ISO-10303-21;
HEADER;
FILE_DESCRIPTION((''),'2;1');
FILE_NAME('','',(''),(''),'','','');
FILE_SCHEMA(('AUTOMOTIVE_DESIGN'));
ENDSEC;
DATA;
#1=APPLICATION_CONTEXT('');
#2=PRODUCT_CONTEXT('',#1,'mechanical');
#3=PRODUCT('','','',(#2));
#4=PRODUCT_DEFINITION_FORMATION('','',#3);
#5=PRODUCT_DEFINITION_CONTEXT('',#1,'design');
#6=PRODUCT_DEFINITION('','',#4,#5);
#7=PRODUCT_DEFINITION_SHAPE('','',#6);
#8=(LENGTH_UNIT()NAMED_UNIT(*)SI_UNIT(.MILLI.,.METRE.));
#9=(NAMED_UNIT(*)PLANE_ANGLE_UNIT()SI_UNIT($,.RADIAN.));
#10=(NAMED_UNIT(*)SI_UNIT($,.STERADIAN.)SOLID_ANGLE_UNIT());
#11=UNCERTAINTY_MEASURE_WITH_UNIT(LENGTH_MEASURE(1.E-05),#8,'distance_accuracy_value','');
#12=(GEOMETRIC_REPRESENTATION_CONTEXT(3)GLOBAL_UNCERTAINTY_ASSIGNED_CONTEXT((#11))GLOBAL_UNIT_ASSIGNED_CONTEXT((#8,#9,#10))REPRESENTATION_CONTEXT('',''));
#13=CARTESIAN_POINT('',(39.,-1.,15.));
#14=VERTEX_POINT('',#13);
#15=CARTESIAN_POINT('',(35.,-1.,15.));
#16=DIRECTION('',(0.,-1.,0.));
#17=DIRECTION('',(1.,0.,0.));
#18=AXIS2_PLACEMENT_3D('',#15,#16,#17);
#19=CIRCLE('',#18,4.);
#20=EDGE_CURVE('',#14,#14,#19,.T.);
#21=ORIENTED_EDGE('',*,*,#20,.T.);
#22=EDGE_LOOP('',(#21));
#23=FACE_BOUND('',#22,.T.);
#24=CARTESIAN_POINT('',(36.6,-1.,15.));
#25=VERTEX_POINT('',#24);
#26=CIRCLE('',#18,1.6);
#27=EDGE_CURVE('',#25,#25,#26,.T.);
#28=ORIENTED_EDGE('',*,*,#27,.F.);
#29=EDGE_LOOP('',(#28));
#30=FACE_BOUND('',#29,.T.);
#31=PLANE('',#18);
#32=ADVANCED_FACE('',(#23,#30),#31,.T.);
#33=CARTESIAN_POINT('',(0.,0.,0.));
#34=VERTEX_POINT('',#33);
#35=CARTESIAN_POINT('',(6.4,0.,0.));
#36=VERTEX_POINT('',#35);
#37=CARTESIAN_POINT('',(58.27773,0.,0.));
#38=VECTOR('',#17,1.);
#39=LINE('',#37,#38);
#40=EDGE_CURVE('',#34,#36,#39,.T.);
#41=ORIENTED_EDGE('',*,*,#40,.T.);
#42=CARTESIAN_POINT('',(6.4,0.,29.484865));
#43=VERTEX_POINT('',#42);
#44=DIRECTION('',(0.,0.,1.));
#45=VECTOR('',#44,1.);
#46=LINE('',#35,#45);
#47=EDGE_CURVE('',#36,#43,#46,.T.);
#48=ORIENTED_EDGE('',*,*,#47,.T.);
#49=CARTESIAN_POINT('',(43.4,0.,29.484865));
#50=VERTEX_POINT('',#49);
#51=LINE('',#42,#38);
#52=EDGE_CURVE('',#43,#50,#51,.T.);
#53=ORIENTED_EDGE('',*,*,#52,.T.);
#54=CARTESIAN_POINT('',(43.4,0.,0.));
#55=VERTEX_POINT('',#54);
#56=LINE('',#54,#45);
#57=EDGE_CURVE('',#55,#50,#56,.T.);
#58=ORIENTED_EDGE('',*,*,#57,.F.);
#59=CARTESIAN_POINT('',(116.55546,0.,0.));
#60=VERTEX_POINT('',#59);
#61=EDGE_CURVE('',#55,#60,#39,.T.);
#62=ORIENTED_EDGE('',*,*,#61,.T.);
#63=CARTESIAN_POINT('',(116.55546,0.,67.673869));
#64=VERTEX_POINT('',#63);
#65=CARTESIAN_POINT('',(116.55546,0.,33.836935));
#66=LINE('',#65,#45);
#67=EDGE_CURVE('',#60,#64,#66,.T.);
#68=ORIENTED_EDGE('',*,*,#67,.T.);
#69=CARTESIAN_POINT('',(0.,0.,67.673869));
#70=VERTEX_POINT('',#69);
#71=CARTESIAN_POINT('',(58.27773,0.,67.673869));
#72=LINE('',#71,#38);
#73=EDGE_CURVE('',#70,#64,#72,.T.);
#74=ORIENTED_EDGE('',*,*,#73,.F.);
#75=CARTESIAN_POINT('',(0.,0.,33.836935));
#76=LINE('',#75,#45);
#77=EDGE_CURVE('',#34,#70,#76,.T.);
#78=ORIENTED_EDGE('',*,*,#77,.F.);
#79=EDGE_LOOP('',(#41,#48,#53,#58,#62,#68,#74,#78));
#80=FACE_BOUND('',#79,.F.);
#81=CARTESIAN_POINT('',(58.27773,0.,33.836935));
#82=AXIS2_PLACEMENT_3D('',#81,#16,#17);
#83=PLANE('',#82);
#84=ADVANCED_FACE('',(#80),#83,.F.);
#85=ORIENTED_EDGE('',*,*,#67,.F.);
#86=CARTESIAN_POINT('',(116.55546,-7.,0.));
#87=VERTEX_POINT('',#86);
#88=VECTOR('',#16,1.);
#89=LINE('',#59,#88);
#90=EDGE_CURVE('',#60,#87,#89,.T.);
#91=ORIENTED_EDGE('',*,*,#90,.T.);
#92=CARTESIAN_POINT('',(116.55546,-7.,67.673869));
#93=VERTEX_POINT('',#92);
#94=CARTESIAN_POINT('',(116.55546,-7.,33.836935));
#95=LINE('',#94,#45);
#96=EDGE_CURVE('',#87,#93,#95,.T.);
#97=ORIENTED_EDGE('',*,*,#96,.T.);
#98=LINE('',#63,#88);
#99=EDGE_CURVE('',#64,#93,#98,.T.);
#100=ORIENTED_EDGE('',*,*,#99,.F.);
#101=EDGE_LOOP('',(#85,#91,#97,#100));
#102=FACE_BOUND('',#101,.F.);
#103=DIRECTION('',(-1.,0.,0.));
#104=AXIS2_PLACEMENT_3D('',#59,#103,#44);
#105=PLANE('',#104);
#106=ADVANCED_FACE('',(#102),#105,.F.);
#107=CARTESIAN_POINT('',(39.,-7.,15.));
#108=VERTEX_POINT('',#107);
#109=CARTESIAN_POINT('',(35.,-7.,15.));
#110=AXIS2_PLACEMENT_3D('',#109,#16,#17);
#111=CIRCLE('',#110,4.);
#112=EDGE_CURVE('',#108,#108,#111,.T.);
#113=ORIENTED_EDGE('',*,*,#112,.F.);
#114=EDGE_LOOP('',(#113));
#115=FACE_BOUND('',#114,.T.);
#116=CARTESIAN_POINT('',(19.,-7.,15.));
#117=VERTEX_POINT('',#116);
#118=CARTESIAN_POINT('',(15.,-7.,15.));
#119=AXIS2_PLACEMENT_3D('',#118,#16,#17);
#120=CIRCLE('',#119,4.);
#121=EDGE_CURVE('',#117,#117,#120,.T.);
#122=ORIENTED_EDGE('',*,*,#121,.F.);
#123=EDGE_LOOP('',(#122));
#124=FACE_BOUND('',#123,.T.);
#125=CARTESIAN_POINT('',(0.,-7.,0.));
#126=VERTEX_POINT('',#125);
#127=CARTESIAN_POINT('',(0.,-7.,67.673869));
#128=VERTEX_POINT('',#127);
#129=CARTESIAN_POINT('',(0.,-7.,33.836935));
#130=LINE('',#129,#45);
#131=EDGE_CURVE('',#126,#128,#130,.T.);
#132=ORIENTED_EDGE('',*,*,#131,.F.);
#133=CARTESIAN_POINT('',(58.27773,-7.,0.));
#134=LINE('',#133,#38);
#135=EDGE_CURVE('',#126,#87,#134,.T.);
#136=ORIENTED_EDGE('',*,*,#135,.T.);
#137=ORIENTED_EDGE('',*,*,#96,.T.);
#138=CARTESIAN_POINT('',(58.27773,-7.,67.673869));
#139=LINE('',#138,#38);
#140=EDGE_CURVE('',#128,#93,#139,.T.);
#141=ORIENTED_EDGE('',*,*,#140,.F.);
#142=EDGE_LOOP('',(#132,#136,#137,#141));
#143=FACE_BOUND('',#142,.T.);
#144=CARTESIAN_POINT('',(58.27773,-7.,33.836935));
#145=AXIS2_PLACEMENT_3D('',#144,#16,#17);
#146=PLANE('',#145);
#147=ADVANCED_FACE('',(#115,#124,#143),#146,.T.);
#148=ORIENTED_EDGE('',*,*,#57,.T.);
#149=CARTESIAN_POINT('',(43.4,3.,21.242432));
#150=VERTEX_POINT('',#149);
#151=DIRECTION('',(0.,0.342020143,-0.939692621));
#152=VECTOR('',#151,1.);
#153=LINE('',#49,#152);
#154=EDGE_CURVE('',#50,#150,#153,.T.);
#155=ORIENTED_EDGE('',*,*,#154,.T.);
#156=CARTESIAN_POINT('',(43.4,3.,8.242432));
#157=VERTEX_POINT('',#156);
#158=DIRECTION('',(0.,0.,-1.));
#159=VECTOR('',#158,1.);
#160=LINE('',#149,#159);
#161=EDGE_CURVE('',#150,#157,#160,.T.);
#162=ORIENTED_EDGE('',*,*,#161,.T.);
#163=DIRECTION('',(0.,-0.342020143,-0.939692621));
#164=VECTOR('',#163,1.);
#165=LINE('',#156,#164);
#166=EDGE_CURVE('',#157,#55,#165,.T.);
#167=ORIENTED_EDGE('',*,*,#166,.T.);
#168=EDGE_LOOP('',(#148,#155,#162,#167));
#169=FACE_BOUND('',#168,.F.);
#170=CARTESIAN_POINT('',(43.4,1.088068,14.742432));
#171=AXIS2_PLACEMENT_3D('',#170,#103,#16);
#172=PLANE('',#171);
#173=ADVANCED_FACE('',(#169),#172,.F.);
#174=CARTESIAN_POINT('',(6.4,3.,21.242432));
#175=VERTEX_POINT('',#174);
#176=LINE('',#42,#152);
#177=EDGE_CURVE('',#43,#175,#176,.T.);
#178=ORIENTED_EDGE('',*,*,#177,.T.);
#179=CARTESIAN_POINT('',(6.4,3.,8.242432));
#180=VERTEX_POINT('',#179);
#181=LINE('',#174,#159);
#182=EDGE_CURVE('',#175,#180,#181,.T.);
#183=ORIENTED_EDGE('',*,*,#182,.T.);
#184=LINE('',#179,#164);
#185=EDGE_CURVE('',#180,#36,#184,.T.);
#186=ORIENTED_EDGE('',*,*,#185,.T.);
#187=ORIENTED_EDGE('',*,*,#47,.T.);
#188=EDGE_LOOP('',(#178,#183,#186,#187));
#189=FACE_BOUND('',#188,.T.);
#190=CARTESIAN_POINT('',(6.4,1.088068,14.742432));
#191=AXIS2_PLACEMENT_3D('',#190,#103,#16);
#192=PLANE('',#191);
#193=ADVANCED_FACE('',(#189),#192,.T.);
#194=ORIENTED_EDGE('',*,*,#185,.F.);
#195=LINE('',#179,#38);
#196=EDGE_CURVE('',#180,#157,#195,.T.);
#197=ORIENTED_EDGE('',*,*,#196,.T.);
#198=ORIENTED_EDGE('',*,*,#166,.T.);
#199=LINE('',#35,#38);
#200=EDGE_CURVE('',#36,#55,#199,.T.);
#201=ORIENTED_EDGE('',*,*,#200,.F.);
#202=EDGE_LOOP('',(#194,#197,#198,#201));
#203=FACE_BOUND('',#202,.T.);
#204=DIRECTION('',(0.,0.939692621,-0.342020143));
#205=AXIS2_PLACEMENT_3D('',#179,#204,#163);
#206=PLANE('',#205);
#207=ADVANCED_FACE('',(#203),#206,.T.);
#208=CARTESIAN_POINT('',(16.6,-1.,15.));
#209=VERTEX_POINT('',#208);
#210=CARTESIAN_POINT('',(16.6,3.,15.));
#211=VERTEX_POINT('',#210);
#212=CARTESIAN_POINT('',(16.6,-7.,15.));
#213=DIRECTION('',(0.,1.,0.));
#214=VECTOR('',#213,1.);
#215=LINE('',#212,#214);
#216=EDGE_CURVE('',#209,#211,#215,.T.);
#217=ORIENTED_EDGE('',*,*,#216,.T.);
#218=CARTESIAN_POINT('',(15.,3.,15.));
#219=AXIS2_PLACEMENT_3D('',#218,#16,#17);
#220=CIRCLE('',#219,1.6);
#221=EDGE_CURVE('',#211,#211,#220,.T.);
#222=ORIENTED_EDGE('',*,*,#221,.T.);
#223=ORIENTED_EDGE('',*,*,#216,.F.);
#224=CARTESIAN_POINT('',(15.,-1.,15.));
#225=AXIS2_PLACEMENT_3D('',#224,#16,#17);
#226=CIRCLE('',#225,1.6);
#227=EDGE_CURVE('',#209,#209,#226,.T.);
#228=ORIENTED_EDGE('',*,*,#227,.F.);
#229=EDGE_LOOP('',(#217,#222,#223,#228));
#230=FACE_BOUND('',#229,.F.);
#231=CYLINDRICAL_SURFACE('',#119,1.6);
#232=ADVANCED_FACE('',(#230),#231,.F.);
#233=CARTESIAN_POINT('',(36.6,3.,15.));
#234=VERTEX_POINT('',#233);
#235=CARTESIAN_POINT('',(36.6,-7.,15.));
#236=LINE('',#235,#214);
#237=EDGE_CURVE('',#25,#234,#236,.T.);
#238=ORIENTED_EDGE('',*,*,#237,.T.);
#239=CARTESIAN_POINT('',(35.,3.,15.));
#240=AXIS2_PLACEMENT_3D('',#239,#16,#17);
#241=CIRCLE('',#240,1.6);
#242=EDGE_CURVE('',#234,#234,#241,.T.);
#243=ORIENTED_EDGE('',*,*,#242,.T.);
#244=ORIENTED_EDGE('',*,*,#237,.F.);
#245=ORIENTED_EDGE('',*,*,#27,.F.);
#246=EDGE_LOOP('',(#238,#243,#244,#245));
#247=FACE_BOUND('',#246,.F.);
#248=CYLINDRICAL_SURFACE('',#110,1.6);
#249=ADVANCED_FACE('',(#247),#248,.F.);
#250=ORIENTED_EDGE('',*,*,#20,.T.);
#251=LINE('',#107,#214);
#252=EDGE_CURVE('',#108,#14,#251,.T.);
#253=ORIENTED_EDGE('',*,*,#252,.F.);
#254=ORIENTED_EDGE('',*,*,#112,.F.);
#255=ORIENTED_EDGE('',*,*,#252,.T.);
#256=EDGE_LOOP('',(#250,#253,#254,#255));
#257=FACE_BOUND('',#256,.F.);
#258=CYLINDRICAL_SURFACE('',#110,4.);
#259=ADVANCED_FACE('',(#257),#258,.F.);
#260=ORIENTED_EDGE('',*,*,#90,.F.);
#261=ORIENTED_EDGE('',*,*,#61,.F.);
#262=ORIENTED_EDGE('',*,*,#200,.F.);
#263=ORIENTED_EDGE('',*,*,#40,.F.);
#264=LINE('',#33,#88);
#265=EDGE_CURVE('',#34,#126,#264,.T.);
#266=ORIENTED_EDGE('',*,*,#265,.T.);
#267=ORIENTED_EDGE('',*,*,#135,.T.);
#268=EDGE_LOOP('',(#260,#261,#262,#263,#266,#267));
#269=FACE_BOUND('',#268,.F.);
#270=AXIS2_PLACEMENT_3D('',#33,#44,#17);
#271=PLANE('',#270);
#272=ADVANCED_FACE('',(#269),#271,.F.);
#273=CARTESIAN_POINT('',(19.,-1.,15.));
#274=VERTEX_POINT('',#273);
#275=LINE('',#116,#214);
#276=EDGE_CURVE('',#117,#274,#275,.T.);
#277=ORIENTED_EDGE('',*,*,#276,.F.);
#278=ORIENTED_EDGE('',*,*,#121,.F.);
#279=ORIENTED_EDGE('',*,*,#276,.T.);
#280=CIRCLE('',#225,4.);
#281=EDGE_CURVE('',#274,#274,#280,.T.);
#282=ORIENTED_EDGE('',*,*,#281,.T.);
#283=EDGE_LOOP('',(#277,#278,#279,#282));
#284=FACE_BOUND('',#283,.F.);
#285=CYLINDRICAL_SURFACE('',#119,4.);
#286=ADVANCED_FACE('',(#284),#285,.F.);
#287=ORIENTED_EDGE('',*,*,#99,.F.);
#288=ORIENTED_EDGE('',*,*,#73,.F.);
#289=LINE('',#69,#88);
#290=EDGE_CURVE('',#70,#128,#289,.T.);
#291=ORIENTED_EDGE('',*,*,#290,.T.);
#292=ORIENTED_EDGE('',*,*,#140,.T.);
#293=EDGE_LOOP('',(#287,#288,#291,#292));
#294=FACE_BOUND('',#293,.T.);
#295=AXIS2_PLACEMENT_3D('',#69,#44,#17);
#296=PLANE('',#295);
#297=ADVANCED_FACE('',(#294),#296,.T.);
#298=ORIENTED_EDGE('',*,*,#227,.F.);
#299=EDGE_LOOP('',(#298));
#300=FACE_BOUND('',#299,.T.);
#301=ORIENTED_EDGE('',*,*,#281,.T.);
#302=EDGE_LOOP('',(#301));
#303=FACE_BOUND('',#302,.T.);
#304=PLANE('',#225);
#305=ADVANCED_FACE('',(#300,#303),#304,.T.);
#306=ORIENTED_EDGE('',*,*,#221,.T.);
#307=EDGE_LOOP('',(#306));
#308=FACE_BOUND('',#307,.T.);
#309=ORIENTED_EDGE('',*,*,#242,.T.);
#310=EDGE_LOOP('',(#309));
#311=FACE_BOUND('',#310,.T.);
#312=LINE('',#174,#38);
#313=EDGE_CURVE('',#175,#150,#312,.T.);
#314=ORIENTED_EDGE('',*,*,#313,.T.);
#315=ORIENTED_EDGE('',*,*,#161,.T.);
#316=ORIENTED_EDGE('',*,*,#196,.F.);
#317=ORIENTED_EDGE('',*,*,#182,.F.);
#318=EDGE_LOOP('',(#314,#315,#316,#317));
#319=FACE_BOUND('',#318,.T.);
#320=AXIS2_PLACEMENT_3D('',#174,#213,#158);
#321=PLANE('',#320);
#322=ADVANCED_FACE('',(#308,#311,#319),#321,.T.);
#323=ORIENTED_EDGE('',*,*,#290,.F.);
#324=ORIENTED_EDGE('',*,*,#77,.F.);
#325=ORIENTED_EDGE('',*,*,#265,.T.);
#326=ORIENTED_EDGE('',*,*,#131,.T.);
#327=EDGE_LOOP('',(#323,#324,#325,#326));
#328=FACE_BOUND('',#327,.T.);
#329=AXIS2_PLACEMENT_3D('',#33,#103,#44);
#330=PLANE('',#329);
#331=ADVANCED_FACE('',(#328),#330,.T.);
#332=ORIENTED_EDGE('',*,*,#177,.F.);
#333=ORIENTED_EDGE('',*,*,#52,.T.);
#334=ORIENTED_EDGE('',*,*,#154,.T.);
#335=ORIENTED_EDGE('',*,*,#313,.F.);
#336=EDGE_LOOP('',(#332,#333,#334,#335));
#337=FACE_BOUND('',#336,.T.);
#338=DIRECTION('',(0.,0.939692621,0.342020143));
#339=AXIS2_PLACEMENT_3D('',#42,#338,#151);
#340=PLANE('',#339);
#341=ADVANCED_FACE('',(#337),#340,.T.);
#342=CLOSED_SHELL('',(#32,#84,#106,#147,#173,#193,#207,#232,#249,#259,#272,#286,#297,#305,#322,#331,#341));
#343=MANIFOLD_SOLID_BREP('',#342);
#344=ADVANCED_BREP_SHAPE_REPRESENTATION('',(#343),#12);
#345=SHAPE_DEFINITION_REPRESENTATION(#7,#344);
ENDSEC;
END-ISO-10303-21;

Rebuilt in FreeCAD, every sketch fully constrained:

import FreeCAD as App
import Part
import Sketcher
from FreeCAD import Vector
Q = App.Units.Quantity

doc = App.newDocument("Part")
body = doc.addObject("PartDesign::Body", "Body")

sketch1 = body.newObject("Sketcher::SketchObject", "Sketch")
sketch1.AttachmentSupport = (doc.getObject("XZ_Plane"), [""])
sketch1.MapMode = "FlatFace"
sketch1.addGeometry(Part.LineSegment(Vector(0, 68, 0), Vector(0, 0, 0)), False)
sketch1.addGeometry(Part.LineSegment(Vector(0, 0, 0), Vector(117, 0, 0)), False)
sketch1.addGeometry(Part.LineSegment(Vector(117, 0, 0), Vector(117, 68, 0)), False)
sketch1.addGeometry(Part.LineSegment(Vector(117, 68, 0), Vector(0, 68, 0)), False)
sketch1.addConstraint(Sketcher.Constraint("Coincident", 0, 2, 1, 1))
sketch1.addConstraint(Sketcher.Constraint("Coincident", 1, 2, 2, 1))
sketch1.addConstraint(Sketcher.Constraint("Coincident", 2, 2, 3, 1))
sketch1.addConstraint(Sketcher.Constraint("Coincident", 3, 2, 0, 1))
sketch1.addConstraint(Sketcher.Constraint("Vertical", 0))
sketch1.addConstraint(Sketcher.Constraint("Horizontal", 1))
sketch1.addConstraint(Sketcher.Constraint("Vertical", 2))
sketch1.addConstraint(Sketcher.Constraint("Horizontal", 3))
sketch1.addConstraint(Sketcher.Constraint("Coincident", 0, 2, -1, 1))
sketch1.addConstraint(Sketcher.Constraint("DistanceX", 1, 1, 1, 2, Q("116.55546 mm")))
sketch1.addConstraint(Sketcher.Constraint("DistanceY", 0, 2, 0, 1, Q("67.673869 mm")))
pad1 = body.newObject("PartDesign::Pad", "Pad")
pad1.Profile = sketch1
pad1.Length = 7

sketch2 = body.newObject("Sketcher::SketchObject", "Sketch001")
sketch2.AttachmentSupport = (doc.getObject("YZ_Plane"), [""])
sketch2.MapMode = "FlatFace"
sketch2.AttachmentOffset = App.Placement(Vector(0, 0, 6.4), App.Rotation())
sketch2.addGeometry(Part.LineSegment(Vector(3, 8, 0), Vector(0, 0, 0)), False)
sketch2.addGeometry(Part.LineSegment(Vector(0, 0, 0), Vector(0, 29, 0)), False)
sketch2.addGeometry(Part.LineSegment(Vector(0, 29, 0), Vector(3, 21, 0)), False)
sketch2.addGeometry(Part.LineSegment(Vector(3, 21, 0), Vector(3, 8, 0)), False)
sketch2.addConstraint(Sketcher.Constraint("Coincident", 0, 2, 1, 1))
sketch2.addConstraint(Sketcher.Constraint("Coincident", 1, 2, 2, 1))
sketch2.addConstraint(Sketcher.Constraint("Coincident", 2, 2, 3, 1))
sketch2.addConstraint(Sketcher.Constraint("Coincident", 3, 2, 0, 1))
sketch2.addConstraint(Sketcher.Constraint("Vertical", 1))
sketch2.addConstraint(Sketcher.Constraint("Vertical", 3))
sketch2.addConstraint(Sketcher.Constraint("Coincident", 0, 2, -1, 1))
sketch2.addConstraint(Sketcher.Constraint("Equal", 0, 2))
sketch2.addConstraint(Sketcher.Constraint("DistanceY", 3, 2, 3, 1, Q("13 mm")))
sketch2.addConstraint(Sketcher.Constraint("Angle", 0, Q("-110 deg")))
sketch2.addConstraint(Sketcher.Constraint("DistanceX", -1, 1, 2, 2, Q("3 mm")))
pad2 = body.newObject("PartDesign::Pad", "Pad001")
pad2.Profile = sketch2
pad2.Length = 37

sketch3 = body.newObject("Sketcher::SketchObject", "Sketch002")
sketch3.AttachmentSupport = (doc.getObject("XZ_Plane"), [""])
sketch3.MapMode = "FlatFace"
sketch3.AttachmentOffset = App.Placement(Vector(0, 0, 7), App.Rotation())
sketch3.addGeometry(Part.Circle(Vector(15, 15, 0), Vector(0, 0, 1), 1.6), False)
sketch3.addGeometry(Part.Circle(Vector(35, 15, 0), Vector(0, 0, 1), 1.6), False)
sketch3.addConstraint(Sketcher.Constraint("Equal", 0, 1))
sketch3.addConstraint(Sketcher.Constraint("Horizontal", 0, 3, 1, 3))
sketch3.addConstraint(Sketcher.Constraint("Diameter", 0, Q("3.2 mm")))
sketch3.addConstraint(Sketcher.Constraint("DistanceX", -1, 1, 0, 3, Q("15 mm")))
sketch3.addConstraint(Sketcher.Constraint("DistanceY", -1, 1, 0, 3, Q("15 mm")))
sketch3.addConstraint(Sketcher.Constraint("DistanceX", -1, 1, 1, 3, Q("35 mm")))
pocket1 = body.newObject("PartDesign::Pocket", "Pocket")
pocket1.Profile = sketch3
pocket1.Type = "ThroughAll"

sketch4 = body.newObject("Sketcher::SketchObject", "Sketch003")
sketch4.AttachmentSupport = (doc.getObject("XZ_Plane"), [""])
sketch4.MapMode = "FlatFace"
sketch4.AttachmentOffset = App.Placement(Vector(0, 0, 7), App.Rotation())
sketch4.addGeometry(Part.Circle(Vector(15, 15, 0), Vector(0, 0, 1), 4), False)
sketch4.addGeometry(Part.Circle(Vector(15, 15, 0), Vector(0, 0, 1), 1.6), False)
sketch4.addGeometry(Part.Circle(Vector(35, 15, 0), Vector(0, 0, 1), 4), False)
sketch4.addGeometry(Part.Circle(Vector(35, 15, 0), Vector(0, 0, 1), 1.6), False)
sketch4.addConstraint(Sketcher.Constraint("Coincident", 1, 3, 0, 3))
sketch4.addConstraint(Sketcher.Constraint("Coincident", 3, 3, 2, 3))
sketch4.addConstraint(Sketcher.Constraint("Equal", 0, 2))
sketch4.addConstraint(Sketcher.Constraint("Equal", 1, 3))
sketch4.addConstraint(Sketcher.Constraint("Horizontal", 1, 3, 2, 3))
sketch4.addConstraint(Sketcher.Constraint("Diameter", 0, Q("8 mm")))
sketch4.addConstraint(Sketcher.Constraint("Diameter", 1, Q("3.2 mm")))
sketch4.addConstraint(Sketcher.Constraint("DistanceX", -1, 1, 0, 3, Q("15 mm")))
sketch4.addConstraint(Sketcher.Constraint("DistanceY", -1, 1, 0, 3, Q("15 mm")))
sketch4.addConstraint(Sketcher.Constraint("DistanceX", -1, 1, 2, 3, Q("35 mm")))
pocket2 = body.newObject("PartDesign::Pocket", "Pocket001")
pocket2.Profile = sketch4
pocket2.Length = 6

doc.recompute()
